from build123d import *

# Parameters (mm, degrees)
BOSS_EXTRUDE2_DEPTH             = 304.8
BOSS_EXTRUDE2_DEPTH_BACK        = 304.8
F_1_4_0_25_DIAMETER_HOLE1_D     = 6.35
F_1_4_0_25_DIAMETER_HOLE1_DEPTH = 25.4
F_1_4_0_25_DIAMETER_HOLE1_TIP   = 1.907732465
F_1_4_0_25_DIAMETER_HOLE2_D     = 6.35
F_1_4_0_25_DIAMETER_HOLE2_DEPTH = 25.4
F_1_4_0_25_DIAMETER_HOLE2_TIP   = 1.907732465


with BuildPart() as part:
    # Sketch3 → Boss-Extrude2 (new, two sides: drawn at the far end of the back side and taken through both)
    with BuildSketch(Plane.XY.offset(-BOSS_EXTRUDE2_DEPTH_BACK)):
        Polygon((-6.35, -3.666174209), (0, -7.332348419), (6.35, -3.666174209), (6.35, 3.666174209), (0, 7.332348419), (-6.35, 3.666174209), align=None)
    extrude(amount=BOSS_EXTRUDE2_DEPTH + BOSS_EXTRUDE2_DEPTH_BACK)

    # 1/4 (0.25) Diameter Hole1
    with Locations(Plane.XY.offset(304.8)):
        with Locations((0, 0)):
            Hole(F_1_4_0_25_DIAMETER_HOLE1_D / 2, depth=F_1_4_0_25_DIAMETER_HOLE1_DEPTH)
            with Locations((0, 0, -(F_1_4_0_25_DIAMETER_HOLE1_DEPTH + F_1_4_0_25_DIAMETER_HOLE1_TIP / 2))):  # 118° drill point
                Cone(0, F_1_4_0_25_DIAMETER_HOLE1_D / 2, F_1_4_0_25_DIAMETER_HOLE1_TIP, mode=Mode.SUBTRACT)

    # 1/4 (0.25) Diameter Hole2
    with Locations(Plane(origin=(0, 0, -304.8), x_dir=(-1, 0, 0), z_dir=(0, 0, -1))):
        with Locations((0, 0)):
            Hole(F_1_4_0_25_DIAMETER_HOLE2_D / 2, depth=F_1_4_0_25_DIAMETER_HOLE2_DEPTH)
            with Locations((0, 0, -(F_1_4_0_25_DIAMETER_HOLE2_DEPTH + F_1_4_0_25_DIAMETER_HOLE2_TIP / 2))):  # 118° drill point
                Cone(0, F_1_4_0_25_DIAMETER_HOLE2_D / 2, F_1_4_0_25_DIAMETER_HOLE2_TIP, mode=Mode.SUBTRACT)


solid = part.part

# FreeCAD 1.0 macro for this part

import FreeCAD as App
import Part
import Sketcher
from FreeCAD import Vector
Q = App.Units.Quantity


def add_polygon(sketch, points):
    """Adds a closed chain of lines whose ends are joined by coincident constraints."""
    first, n = sketch.GeometryCount, len(points)
    for a, b in zip(points, points[1:] + points[:1]):
        sketch.addGeometry(Part.LineSegment(App.Vector(*a, 0), App.Vector(*b, 0)), False)
    for i in range(n):
        sketch.addConstraint(Sketcher.Constraint("Coincident", first + i, 2, first + (i + 1) % n, 1))

doc = App.newDocument("Part")
body = doc.addObject("PartDesign::Body", "Body")

# Sketch on XY plane
sketch1 = doc.addObject("Sketcher::SketchObject", "Sketch")
body.addObject(sketch1)
sketch1.AttachmentSupport = (doc.XY_Plane, [""])
sketch1.MapMode = "FlatFace"
add_polygon(sketch1, [(-6, -4), (0, -7), (6, -4), (6, 4), (0, 7), (-6, 4)])  # lines 0-5
sketch1.addConstraint([
    Sketcher.Constraint("Vertical", 2),
    Sketcher.Constraint("Vertical", 5),
    Sketcher.Constraint("Symmetric", 0, 2, 3, 2, -1, 1),
    Sketcher.Constraint("Symmetric", 1, 2, 4, 2, -1, 1),
    Sketcher.Constraint("PointOnObject", 0, 2, -2),
    Sketcher.Constraint("Parallel", 0, 3),
    Sketcher.Constraint("Horizontal", 2, 2, 4, 2),
    Sketcher.Constraint("Angle", 0, Q("-30 deg")),
    Sketcher.Constraint("DistanceX", 4, 2, 2, 2, Q("0.5 in")),
    Sketcher.Constraint("DistanceY", 2, 1, 2, 2, Q("7.332348 mm")),
])
pad1 = doc.addObject("PartDesign::Pad", "Pad")
body.addObject(pad1)
pad1.Profile = sketch1
pad1.Type = "TwoLengths"
pad1.Length = Q("12 in")
pad1.Length2 = Q("12 in")

# Sketch on XY plane
sketch2 = doc.addObject("Sketcher::SketchObject", "Sketch001")
body.addObject(sketch2)
sketch2.AttachmentSupport = (doc.XY_Plane, [""])
sketch2.MapMode = "FlatFace"
sketch2.AttachmentOffset = App.Placement(Vector(0, 0, 12 * 25.4), App.Rotation())
sketch2.addGeometry(Part.Circle(Vector(0, 0, 0), Vector(0, 0, 1), 3.2), False)
sketch2.addConstraint([
    Sketcher.Constraint("Coincident", 0, 3, -1, 1),
    Sketcher.Constraint("Diameter", 0, Q("0.25 in")),
])
doc.recompute()
hole = doc.addObject("PartDesign::Hole", "Hole")
body.addObject(hole)
hole.Profile = sketch2
hole.ThreadType = "None"
hole.Diameter = Q("0.25 in")
hole.DepthType = "Dimension"
hole.Depth = Q("1 in")
hole.DrillPoint = "Angled"
hole.DrillPointAngle = 118

# Sketch on XY plane
sketch3 = doc.addObject("Sketcher::SketchObject", "Sketch002")
body.addObject(sketch3)
sketch3.AttachmentSupport = (doc.XY_Plane, [""])
sketch3.MapMode = "FlatFace"
sketch3.AttachmentOffset = App.Placement(Vector(0, 0, -12 * 25.4), App.Rotation())
sketch3.addGeometry(Part.Circle(Vector(0, 0, 0), Vector(0, 0, 1), 3.2), False)
sketch3.addConstraint([
    Sketcher.Constraint("Coincident", 0, 3, -1, 1),
    Sketcher.Constraint("Diameter", 0, Q("0.25 in")),
])
doc.recompute()
hole2 = doc.addObject("PartDesign::Hole", "Hole001")
body.addObject(hole2)
hole2.Profile = sketch3
hole2.ThreadType = "None"
hole2.Diameter = Q("0.25 in")
hole2.DepthType = "Dimension"
hole2.Depth = Q("1 in")
hole2.DrillPoint = "Angled"
hole2.DrillPointAngle = 118
hole2.Reversed = True

doc.recompute()
